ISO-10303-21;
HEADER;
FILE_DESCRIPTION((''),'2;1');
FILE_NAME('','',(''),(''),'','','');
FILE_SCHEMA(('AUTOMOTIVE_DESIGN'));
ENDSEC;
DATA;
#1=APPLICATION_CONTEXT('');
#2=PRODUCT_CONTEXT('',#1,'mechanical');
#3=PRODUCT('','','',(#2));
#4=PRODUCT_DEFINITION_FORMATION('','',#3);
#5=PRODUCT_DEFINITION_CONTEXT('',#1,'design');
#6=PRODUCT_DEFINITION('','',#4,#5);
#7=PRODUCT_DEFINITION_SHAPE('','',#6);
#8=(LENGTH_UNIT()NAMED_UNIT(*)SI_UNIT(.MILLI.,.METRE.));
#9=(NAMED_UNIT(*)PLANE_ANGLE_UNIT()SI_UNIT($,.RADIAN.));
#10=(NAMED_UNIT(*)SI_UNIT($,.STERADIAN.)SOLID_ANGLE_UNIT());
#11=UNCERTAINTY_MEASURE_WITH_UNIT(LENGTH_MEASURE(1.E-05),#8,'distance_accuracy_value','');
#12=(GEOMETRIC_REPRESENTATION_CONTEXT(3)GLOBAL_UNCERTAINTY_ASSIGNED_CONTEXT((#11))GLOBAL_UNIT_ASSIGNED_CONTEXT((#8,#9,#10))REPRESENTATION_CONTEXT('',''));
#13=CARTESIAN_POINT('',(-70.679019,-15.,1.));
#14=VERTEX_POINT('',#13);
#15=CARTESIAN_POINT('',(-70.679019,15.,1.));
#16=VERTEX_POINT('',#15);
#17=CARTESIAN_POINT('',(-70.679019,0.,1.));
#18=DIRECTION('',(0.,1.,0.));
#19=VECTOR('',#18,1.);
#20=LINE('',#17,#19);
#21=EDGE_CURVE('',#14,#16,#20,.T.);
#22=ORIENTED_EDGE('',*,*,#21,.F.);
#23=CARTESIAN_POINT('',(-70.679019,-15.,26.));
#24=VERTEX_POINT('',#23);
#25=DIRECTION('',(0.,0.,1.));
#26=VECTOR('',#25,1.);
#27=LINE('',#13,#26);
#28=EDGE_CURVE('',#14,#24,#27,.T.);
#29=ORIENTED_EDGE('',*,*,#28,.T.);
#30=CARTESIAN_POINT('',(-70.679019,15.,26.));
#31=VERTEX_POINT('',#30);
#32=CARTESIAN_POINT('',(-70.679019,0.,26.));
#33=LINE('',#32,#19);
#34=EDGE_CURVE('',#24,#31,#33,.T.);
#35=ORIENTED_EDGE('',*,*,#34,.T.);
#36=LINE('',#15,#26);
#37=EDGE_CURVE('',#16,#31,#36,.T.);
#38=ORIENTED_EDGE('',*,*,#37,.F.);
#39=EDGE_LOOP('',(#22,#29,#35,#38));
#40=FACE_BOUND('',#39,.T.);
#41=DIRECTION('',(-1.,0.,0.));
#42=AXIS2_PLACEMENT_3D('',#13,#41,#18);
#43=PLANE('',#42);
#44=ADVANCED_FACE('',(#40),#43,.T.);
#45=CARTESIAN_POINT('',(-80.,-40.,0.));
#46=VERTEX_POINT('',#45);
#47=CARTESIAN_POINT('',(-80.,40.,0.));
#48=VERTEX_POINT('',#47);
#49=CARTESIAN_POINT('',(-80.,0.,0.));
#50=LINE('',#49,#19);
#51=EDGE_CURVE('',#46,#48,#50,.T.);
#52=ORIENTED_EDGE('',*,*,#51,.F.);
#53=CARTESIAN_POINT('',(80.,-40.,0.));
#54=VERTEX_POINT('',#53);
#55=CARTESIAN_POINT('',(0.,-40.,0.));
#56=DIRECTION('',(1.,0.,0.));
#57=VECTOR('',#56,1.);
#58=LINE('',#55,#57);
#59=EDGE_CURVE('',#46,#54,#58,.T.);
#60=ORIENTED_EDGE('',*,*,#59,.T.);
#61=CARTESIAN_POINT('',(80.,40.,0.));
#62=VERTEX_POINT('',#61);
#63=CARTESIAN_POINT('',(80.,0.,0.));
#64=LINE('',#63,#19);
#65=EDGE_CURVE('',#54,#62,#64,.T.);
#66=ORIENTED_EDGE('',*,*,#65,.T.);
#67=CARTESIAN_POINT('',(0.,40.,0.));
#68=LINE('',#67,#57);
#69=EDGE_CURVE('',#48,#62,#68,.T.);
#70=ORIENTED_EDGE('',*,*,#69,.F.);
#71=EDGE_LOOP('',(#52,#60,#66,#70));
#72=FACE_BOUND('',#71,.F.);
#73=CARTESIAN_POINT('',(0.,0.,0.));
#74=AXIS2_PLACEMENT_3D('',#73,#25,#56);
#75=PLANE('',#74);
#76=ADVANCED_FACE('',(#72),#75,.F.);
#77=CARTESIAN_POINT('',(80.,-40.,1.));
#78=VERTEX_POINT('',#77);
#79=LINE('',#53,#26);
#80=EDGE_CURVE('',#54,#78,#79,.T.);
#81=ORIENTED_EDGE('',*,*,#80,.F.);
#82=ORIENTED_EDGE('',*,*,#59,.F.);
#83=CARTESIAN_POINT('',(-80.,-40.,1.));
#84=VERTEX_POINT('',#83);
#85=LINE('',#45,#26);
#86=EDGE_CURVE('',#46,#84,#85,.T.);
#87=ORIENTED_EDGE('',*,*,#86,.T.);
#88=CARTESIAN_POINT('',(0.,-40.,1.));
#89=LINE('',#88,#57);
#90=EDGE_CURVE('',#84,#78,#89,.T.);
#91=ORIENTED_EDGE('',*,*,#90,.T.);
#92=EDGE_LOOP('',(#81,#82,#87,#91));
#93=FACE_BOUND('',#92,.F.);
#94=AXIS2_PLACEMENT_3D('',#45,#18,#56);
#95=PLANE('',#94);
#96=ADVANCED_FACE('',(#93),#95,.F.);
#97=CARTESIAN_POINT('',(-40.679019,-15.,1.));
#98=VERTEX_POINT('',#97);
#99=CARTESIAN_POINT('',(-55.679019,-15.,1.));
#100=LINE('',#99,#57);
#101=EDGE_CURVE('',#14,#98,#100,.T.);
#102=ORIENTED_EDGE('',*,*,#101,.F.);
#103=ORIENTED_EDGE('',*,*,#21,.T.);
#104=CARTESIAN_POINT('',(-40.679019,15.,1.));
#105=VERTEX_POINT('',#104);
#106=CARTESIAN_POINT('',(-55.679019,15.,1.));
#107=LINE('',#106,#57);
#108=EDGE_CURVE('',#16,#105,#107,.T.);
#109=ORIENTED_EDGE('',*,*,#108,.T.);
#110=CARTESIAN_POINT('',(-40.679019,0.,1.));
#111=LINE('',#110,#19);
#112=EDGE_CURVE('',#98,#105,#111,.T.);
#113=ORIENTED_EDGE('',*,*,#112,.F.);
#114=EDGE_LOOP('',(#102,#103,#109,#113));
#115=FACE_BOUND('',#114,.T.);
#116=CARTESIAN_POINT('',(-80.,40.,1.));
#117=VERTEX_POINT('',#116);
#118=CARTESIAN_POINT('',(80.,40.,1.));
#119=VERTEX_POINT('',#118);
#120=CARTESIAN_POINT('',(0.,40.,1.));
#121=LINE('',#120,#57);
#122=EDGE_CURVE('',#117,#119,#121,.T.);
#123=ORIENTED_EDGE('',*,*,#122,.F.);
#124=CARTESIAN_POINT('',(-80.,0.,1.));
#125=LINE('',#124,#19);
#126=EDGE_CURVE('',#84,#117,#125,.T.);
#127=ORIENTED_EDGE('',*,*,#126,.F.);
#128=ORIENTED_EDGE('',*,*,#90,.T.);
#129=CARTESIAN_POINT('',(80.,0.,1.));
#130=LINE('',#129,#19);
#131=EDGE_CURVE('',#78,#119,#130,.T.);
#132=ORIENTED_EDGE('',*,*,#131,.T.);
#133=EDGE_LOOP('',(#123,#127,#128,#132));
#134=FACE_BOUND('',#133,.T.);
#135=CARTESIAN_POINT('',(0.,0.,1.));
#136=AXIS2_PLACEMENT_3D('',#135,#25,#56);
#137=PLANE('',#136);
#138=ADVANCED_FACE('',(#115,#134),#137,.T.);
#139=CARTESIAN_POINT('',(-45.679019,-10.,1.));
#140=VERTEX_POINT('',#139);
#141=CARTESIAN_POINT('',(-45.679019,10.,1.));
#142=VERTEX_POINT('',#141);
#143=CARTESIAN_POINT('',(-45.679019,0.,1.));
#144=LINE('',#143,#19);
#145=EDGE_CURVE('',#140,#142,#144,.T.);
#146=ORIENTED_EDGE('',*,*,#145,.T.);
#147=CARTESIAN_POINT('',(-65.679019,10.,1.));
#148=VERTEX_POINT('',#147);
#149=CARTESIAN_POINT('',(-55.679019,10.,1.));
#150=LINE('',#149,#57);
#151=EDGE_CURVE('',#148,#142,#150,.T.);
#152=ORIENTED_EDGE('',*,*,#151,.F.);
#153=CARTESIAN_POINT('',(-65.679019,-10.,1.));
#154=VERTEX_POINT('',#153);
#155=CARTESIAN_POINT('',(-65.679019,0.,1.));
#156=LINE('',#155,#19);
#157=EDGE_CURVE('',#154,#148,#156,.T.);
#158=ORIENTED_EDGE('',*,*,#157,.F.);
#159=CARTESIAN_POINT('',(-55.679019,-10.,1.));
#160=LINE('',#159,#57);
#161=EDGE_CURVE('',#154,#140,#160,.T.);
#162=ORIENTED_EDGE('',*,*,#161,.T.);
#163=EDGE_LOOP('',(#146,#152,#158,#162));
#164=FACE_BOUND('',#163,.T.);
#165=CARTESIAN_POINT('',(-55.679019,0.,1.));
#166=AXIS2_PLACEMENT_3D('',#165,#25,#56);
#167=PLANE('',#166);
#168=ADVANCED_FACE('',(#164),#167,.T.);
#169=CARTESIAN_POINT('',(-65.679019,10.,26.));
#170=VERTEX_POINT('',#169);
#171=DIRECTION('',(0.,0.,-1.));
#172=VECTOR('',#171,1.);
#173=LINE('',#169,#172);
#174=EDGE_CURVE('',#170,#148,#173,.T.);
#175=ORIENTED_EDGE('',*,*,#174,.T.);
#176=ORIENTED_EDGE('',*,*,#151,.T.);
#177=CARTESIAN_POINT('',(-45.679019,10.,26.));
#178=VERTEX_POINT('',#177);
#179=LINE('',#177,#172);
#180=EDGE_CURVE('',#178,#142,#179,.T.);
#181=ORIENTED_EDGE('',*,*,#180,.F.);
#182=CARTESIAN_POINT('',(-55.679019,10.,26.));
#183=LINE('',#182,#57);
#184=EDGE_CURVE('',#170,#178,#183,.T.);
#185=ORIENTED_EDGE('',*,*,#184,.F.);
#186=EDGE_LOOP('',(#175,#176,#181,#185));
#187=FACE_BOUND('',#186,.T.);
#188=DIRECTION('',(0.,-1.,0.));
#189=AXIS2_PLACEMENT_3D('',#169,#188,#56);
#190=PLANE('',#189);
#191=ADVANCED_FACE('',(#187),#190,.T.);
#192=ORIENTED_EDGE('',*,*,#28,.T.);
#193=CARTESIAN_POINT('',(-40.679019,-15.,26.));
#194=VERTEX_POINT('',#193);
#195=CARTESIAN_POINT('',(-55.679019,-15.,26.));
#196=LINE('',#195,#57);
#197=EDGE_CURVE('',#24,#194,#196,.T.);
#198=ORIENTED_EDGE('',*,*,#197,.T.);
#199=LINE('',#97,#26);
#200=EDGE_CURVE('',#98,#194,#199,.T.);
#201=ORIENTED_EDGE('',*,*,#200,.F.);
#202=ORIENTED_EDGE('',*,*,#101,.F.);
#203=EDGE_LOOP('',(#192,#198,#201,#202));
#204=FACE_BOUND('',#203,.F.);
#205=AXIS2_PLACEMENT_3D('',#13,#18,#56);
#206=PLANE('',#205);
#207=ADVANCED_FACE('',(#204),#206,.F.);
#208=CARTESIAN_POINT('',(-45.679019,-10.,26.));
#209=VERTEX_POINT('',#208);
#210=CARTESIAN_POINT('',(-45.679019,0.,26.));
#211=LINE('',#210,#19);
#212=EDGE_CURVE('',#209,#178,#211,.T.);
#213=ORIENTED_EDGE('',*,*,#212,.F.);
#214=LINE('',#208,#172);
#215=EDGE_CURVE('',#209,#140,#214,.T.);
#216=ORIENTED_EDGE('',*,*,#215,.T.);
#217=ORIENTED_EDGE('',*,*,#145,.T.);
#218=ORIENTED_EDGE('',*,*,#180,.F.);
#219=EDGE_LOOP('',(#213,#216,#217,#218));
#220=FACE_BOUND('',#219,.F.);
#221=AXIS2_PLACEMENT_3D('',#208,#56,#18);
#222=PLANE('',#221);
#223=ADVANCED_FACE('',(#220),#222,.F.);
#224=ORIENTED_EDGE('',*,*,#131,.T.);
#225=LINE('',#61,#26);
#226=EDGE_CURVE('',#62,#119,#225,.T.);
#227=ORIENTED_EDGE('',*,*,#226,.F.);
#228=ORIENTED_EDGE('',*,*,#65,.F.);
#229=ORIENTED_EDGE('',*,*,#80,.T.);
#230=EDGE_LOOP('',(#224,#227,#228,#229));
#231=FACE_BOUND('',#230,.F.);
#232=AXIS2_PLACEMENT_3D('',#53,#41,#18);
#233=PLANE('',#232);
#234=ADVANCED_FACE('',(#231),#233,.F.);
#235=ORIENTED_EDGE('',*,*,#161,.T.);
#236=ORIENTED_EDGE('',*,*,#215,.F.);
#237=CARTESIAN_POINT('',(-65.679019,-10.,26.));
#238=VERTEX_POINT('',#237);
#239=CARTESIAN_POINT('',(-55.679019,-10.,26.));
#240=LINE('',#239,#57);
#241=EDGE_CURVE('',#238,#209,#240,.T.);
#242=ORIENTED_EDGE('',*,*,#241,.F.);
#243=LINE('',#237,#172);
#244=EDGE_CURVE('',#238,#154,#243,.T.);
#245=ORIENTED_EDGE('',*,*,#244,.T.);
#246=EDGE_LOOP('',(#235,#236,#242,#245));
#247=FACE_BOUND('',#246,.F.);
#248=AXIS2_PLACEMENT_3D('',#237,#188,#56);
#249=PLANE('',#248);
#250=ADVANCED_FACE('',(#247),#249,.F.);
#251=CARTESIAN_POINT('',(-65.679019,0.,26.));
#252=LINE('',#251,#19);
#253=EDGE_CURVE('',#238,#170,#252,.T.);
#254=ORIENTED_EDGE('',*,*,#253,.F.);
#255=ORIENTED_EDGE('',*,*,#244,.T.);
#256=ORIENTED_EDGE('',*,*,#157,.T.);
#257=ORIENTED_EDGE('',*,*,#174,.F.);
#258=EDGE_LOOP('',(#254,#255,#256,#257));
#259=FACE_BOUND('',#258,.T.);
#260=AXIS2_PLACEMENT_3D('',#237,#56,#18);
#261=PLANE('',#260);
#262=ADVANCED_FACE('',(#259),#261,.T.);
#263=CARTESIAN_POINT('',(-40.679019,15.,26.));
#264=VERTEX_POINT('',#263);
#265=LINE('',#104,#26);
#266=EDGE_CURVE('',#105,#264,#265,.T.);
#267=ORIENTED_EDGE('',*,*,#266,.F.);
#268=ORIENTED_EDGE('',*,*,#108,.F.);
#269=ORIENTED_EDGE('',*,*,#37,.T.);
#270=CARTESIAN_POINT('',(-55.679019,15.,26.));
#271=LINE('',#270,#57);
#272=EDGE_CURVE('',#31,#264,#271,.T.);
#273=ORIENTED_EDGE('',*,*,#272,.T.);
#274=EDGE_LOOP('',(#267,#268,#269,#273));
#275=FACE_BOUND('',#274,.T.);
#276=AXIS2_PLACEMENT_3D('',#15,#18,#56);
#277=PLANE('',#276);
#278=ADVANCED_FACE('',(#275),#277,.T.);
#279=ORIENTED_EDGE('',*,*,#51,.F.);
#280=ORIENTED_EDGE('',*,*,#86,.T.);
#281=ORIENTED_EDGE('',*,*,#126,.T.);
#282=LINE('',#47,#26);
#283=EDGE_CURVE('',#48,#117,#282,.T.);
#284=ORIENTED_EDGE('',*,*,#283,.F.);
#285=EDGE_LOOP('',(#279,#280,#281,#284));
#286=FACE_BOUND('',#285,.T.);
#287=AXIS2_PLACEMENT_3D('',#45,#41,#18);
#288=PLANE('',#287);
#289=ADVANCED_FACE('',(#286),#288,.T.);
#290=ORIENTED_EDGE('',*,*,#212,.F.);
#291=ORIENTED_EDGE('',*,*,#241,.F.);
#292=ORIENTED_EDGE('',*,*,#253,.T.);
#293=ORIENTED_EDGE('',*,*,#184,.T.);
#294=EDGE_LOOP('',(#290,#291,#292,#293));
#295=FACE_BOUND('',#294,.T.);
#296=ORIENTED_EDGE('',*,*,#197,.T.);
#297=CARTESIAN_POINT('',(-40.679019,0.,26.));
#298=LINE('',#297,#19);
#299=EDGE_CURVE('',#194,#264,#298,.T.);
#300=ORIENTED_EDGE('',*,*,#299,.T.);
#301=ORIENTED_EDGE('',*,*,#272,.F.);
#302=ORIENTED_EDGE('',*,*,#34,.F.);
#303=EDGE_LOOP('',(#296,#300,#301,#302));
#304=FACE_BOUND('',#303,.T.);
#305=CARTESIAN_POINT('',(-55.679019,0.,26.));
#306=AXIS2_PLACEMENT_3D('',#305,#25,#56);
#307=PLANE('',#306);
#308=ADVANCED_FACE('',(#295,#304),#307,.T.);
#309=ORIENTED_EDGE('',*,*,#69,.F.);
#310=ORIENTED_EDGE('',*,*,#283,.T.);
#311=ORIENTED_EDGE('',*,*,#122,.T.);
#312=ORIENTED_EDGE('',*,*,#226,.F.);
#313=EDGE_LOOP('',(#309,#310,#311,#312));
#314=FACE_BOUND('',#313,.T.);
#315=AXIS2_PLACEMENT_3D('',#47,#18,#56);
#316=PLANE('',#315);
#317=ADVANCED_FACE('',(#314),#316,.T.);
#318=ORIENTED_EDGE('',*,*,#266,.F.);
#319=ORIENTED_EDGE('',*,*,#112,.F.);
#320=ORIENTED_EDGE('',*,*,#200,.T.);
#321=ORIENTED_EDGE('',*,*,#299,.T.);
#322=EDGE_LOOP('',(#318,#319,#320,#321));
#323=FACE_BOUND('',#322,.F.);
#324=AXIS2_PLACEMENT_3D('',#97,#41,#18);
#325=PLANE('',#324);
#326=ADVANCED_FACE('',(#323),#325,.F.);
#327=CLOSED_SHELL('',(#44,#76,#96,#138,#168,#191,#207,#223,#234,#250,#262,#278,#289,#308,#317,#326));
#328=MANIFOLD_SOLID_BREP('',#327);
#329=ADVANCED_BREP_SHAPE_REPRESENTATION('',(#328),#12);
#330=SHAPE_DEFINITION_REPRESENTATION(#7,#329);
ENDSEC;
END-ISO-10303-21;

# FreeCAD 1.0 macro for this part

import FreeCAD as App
import Part
import Sketcher

V = App.Vector
Q = App.Units.Quantity

doc = App.newDocument("Part")
body = doc.addObject("PartDesign::Body", "Body")

sketch1 = body.newObject("Sketcher::SketchObject", "Sketch")
sketch1.AttachmentSupport = (doc.getObject("XY_Plane"), [""])
sketch1.MapMode = "FlatFace"
sketch1.addGeometry(Part.LineSegment(V(-80, 40, 0), V(-80, -40, 0)), False)
sketch1.addGeometry(Part.LineSegment(V(-80, -40, 0), V(80, -40, 0)), False)
sketch1.addGeometry(Part.LineSegment(V(80, -40, 0), V(80, 40, 0)), False)
sketch1.addGeometry(Part.LineSegment(V(80, 40, 0), V(-80, 40, 0)), False)
sketch1.addConstraint(Sketcher.Constraint("Coincident", 0, 2, 1, 1))
sketch1.addConstraint(Sketcher.Constraint("Coincident", 1, 2, 2, 1))
sketch1.addConstraint(Sketcher.Constraint("Coincident", 2, 2, 3, 1))
sketch1.addConstraint(Sketcher.Constraint("Coincident", 3, 2, 0, 1))
sketch1.addConstraint(Sketcher.Constraint("Vertical", 0))
sketch1.addConstraint(Sketcher.Constraint("Horizontal", 1))
sketch1.addConstraint(Sketcher.Constraint("Vertical", 2))
sketch1.addConstraint(Sketcher.Constraint("Horizontal", 3))
sketch1.addConstraint(Sketcher.Constraint("Symmetric", 0, 2, 2, 2, -1, 1))
sketch1.addConstraint(Sketcher.Constraint("DistanceX", 1, 1, 1, 2, Q("160 mm")))
sketch1.addConstraint(Sketcher.Constraint("DistanceY", 0, 2, 0, 1, Q("80 mm")))
pad1 = body.newObject("PartDesign::Pad", "Pad")
pad1.Profile = sketch1
pad1.Length = 1

sketch2 = body.newObject("Sketcher::SketchObject", "Sketch001")
sketch2.AttachmentSupport = (doc.getObject("XY_Plane"), [""])
sketch2.MapMode = "FlatFace"
sketch2.AttachmentOffset = App.Placement(V(0, 0, 1), App.Rotation())
sketch2.addGeometry(Part.LineSegment(V(-70.679019, 15, 0), V(-70.679019, -15, 0)), False)
sketch2.addGeometry(Part.LineSegment(V(-70.679019, -15, 0), V(-40.679019, -15, 0)), False)
sketch2.addGeometry(Part.LineSegment(V(-40.679019, -15, 0), V(-40.679019, 15, 0)), False)
sketch2.addGeometry(Part.LineSegment(V(-40.679019, 15, 0), V(-70.679019, 15, 0)), False)
sketch2.addConstraint(Sketcher.Constraint("Coincident", 0, 2, 1, 1))
sketch2.addConstraint(Sketcher.Constraint("Coincident", 1, 2, 2, 1))
sketch2.addConstraint(Sketcher.Constraint("Coincident", 2, 2, 3, 1))
sketch2.addConstraint(Sketcher.Constraint("Coincident", 3, 2, 0, 1))
sketch2.addConstraint(Sketcher.Constraint("Vertical", 0))
sketch2.addConstraint(Sketcher.Constraint("Horizontal", 1))
sketch2.addConstraint(Sketcher.Constraint("Vertical", 2))
sketch2.addConstraint(Sketcher.Constraint("Horizontal", 3))
sketch2.addConstraint(Sketcher.Constraint("Equal", 3, 0))
sketch2.addConstraint(Sketcher.Constraint("DistanceX", 1, 1, 1, 2, Q("30 mm")))
sketch2.addConstraint(Sketcher.Constraint("DistanceY", 0, 2, -1, 1, Q("15 mm")))
sketch2.addConstraint(Sketcher.Constraint("DistanceX", 0, 2, -1, 1, Q("70.679019 mm")))
pad2 = body.newObject("PartDesign::Pad", "Pad001")
pad2.Profile = sketch2
pad2.Length = 25

sketch3 = body.newObject("Sketcher::SketchObject", "Sketch002")
sketch3.AttachmentSupport = (doc.getObject("XY_Plane"), [""])
sketch3.MapMode = "FlatFace"
sketch3.AttachmentOffset = App.Placement(V(0, 0, 26), App.Rotation())
sketch3.addGeometry(Part.LineSegment(V(-65.679019, 10, 0), V(-65.679019, -10, 0)), False)
sketch3.addGeometry(Part.LineSegment(V(-65.679019, -10, 0), V(-45.679019, -10, 0)), False)
sketch3.addGeometry(Part.LineSegment(V(-45.679019, -10, 0), V(-45.679019, 10, 0)), False)
sketch3.addGeometry(Part.LineSegment(V(-45.679019, 10, 0), V(-65.679019, 10, 0)), False)
sketch3.addConstraint(Sketcher.Constraint("Coincident", 0, 2, 1, 1))
sketch3.addConstraint(Sketcher.Constraint("Coincident", 1, 2, 2, 1))
sketch3.addConstraint(Sketcher.Constraint("Coincident", 2, 2, 3, 1))
sketch3.addConstraint(Sketcher.Constraint("Coincident", 3, 2, 0, 1))
sketch3.addConstraint(Sketcher.Constraint("Vertical", 0))
sketch3.addConstraint(Sketcher.Constraint("Horizontal", 1))
sketch3.addConstraint(Sketcher.Constraint("Vertical", 2))
sketch3.addConstraint(Sketcher.Constraint("Horizontal", 3))
sketch3.addConstraint(Sketcher.Constraint("Equal", 3, 0))
sketch3.addConstraint(Sketcher.Constraint("DistanceX", 1, 1, 1, 2, Q("20 mm")))
sketch3.addConstraint(Sketcher.Constraint("DistanceY", 0, 2, -1, 1, Q("10 mm")))
sketch3.addConstraint(Sketcher.Constraint("DistanceX", 0, 2, -1, 1, Q("65.679019 mm")))
pocket1 = body.newObject("PartDesign::Pocket", "Pocket")
pocket1.Profile = sketch3
pocket1.Length = 25

doc.recompute()
